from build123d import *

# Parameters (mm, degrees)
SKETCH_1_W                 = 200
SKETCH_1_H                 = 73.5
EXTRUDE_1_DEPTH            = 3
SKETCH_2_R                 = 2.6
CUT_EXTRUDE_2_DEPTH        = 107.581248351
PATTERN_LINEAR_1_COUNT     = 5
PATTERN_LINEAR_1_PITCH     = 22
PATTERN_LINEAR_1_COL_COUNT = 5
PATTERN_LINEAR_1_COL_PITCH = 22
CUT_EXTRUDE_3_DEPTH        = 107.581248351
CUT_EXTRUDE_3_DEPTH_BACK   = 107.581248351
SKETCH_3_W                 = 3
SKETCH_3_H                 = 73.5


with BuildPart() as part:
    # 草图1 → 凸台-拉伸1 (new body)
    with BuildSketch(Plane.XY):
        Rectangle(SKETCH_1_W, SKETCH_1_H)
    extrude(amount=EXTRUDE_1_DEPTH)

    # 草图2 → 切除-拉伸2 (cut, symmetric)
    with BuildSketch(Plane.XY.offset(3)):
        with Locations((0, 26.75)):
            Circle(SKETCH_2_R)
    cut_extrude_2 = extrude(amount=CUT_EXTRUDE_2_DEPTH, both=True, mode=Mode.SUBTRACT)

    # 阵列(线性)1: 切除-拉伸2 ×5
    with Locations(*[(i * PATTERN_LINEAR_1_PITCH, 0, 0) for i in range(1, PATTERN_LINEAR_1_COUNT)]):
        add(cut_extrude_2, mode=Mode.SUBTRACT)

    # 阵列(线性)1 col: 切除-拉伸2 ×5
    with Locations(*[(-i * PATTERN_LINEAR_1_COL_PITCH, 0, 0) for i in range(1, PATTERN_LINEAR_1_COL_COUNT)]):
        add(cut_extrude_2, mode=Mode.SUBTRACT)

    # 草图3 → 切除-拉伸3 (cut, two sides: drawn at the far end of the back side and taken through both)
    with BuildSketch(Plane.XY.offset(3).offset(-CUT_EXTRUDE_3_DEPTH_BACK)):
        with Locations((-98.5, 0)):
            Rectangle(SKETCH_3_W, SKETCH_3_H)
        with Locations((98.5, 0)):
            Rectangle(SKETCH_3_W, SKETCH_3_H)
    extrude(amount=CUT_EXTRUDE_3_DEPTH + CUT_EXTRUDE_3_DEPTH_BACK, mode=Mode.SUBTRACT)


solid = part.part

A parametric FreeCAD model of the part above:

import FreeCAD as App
import Part
import Sketcher
from FreeCAD import Vector
Q = App.Units.Quantity

doc = App.newDocument("Part")
body = doc.addObject("PartDesign::Body", "Body")

sketch1 = body.newObject("Sketcher::SketchObject", "Sketch")
sketch1.AttachmentSupport = (doc.getObject("XY_Plane"), [""])
sketch1.MapMode = "FlatFace"
sketch1.addGeometry(Part.LineSegment(Vector(-100, 36.75, 0), Vector(-100, -36.75, 0)), False)
sketch1.addGeometry(Part.LineSegment(Vector(-100, -36.75, 0), Vector(100, -36.75, 0)), False)
sketch1.addGeometry(Part.LineSegment(Vector(100, -36.75, 0), Vector(100, 36.75, 0)), False)
sketch1.addGeometry(Part.LineSegment(Vector(100, 36.75, 0), Vector(-100, 36.75, 0)), False)
sketch1.addConstraint(Sketcher.Constraint("Coincident", 0, 2, 1, 1))
sketch1.addConstraint(Sketcher.Constraint("Coincident", 1, 2, 2, 1))
sketch1.addConstraint(Sketcher.Constraint("Coincident", 2, 2, 3, 1))
sketch1.addConstraint(Sketcher.Constraint("Coincident", 3, 2, 0, 1))
sketch1.addConstraint(Sketcher.Constraint("Vertical", 0))
sketch1.addConstraint(Sketcher.Constraint("Horizontal", 1))
sketch1.addConstraint(Sketcher.Constraint("Vertical", 2))
sketch1.addConstraint(Sketcher.Constraint("Horizontal", 3))
sketch1.addConstraint(Sketcher.Constraint("Symmetric", 0, 2, 2, 2, -1, 1))
sketch1.addConstraint(Sketcher.Constraint("DistanceX", 1, 1, 1, 2, Q("200 mm")))
sketch1.addConstraint(Sketcher.Constraint("DistanceY", 0, 2, 0, 1, Q("73.5 mm")))
pad1 = body.newObject("PartDesign::Pad", "Pad")
pad1.Profile = sketch1
pad1.Length = 3

sketch2 = body.newObject("Sketcher::SketchObject", "Sketch001")
sketch2.AttachmentSupport = (doc.getObject("XY_Plane"), [""])
sketch2.MapMode = "FlatFace"
sketch2.AttachmentOffset = App.Placement(Vector(0, 0, 3), App.Rotation())
sketch2.addGeometry(Part.Circle(Vector(0, 26.75, 0), Vector(0, 0, 1), 2.6), False)
sketch2.addConstraint(Sketcher.Constraint("PointOnObject", 0, 3, -2))
sketch2.addConstraint(Sketcher.Constraint("Diameter", 0, Q("5.2 mm")))
sketch2.addConstraint(Sketcher.Constraint("DistanceY", -1, 1, 0, 3, Q("26.75 mm")))
pocket1 = body.newObject("PartDesign::Pocket", "Pocket")
pocket1.Profile = sketch2
pocket1.Length = 215.162497
pocket1.Midplane = True
doc.recompute()

linearpattern = body.newObject("PartDesign::LinearPattern", "LinearPattern")
linearpattern.Originals = [pocket1]
linearpattern.Direction = (doc.getObject("X_Axis"), [""])
linearpattern.Mode = "offset"
linearpattern.Offset = 22
linearpattern.Occurrences = 5
body.Tip = linearpattern
doc.recompute()

linearpattern2 = body.newObject("PartDesign::LinearPattern", "LinearPattern001")
linearpattern2.Originals = [pocket1]
linearpattern2.Direction = (doc.getObject("X_Axis"), [""])
linearpattern2.Mode = "offset"
linearpattern2.Offset = 22
linearpattern2.Occurrences = 5
linearpattern2.Reversed = True
body.Tip = linearpattern2

sketch3 = body.newObject("Sketcher::SketchObject", "Sketch002")
sketch3.AttachmentSupport = (doc.getObject("XY_Plane"), [""])
sketch3.MapMode = "FlatFace"
sketch3.AttachmentOffset = App.Placement(Vector(0, 0, 3), App.Rotation())
sketch3.addGeometry(Part.LineSegment(Vector(-100, 36.75, 0), Vector(-100, -36.75, 0)), False)
sketch3.addGeometry(Part.LineSegment(Vector(-100, -36.75, 0), Vector(-97, -36.75, 0)), False)
sketch3.addGeometry(Part.LineSegment(Vector(-97, -36.75, 0), Vector(-97, 36.75, 0)), False)
sketch3.addGeometry(Part.LineSegment(Vector(-97, 36.75, 0), Vector(-100, 36.75, 0)), False)
sketch3.addGeometry(Part.LineSegment(Vector(97, 36.75, 0), Vector(97, -36.75, 0)), False)
sketch3.addGeometry(Part.LineSegment(Vector(97, -36.75, 0), Vector(100, -36.75, 0)), False)
sketch3.addGeometry(Part.LineSegment(Vector(100, -36.75, 0), Vector(100, 36.75, 0)), False)
sketch3.addGeometry(Part.LineSegment(Vector(100, 36.75, 0), Vector(97, 36.75, 0)), False)
sketch3.addConstraint(Sketcher.Constraint("Coincident", 0, 2, 1, 1))
sketch3.addConstraint(Sketcher.Constraint("Coincident", 1, 2, 2, 1))
sketch3.addConstraint(Sketcher.Constraint("Coincident", 2, 2, 3, 1))
sketch3.addConstraint(Sketcher.Constraint("Coincident", 3, 2, 0, 1))
sketch3.addConstraint(Sketcher.Constraint("Coincident", 4, 2, 5, 1))
sketch3.addConstraint(Sketcher.Constraint("Coincident", 5, 2, 6, 1))
sketch3.addConstraint(Sketcher.Constraint("Coincident", 6, 2, 7, 1))
sketch3.addConstraint(Sketcher.Constraint("Coincident", 7, 2, 4, 1))
sketch3.addConstraint(Sketcher.Constraint("Vertical", 0))
sketch3.addConstraint(Sketcher.Constraint("Horizontal", 1))
sketch3.addConstraint(Sketcher.Constraint("Vertical", 2))
sketch3.addConstraint(Sketcher.Constraint("Horizontal", 3))
sketch3.addConstraint(Sketcher.Constraint("Vertical", 4))
sketch3.addConstraint(Sketcher.Constraint("Horizontal", 5))
sketch3.addConstraint(Sketcher.Constraint("Vertical", 6))
sketch3.addConstraint(Sketcher.Constraint("Horizontal", 7))
sketch3.addConstraint(Sketcher.Constraint("Symmetric", 2, 2, 4, 2, -1, 1))
sketch3.addConstraint(Sketcher.Constraint("Symmetric", 0, 2, 6, 2, -1, 1))
sketch3.addConstraint(Sketcher.Constraint("Horizontal", 1, 2, 4, 2))
sketch3.addConstraint(Sketcher.Constraint("DistanceX", 1, 1, 1, 2, Q("3 mm")))
sketch3.addConstraint(Sketcher.Constraint("DistanceY", 0, 2, 0, 1, Q("73.5 mm")))
sketch3.addConstraint(Sketcher.Constraint("DistanceX", 0, 2, -1, 1, Q("100 mm")))
pocket2 = body.newObject("PartDesign::Pocket", "Pocket001")
pocket2.Profile = sketch3
pocket2.Type = "ThroughAll"
pocket2.Midplane = True

doc.recompute()
